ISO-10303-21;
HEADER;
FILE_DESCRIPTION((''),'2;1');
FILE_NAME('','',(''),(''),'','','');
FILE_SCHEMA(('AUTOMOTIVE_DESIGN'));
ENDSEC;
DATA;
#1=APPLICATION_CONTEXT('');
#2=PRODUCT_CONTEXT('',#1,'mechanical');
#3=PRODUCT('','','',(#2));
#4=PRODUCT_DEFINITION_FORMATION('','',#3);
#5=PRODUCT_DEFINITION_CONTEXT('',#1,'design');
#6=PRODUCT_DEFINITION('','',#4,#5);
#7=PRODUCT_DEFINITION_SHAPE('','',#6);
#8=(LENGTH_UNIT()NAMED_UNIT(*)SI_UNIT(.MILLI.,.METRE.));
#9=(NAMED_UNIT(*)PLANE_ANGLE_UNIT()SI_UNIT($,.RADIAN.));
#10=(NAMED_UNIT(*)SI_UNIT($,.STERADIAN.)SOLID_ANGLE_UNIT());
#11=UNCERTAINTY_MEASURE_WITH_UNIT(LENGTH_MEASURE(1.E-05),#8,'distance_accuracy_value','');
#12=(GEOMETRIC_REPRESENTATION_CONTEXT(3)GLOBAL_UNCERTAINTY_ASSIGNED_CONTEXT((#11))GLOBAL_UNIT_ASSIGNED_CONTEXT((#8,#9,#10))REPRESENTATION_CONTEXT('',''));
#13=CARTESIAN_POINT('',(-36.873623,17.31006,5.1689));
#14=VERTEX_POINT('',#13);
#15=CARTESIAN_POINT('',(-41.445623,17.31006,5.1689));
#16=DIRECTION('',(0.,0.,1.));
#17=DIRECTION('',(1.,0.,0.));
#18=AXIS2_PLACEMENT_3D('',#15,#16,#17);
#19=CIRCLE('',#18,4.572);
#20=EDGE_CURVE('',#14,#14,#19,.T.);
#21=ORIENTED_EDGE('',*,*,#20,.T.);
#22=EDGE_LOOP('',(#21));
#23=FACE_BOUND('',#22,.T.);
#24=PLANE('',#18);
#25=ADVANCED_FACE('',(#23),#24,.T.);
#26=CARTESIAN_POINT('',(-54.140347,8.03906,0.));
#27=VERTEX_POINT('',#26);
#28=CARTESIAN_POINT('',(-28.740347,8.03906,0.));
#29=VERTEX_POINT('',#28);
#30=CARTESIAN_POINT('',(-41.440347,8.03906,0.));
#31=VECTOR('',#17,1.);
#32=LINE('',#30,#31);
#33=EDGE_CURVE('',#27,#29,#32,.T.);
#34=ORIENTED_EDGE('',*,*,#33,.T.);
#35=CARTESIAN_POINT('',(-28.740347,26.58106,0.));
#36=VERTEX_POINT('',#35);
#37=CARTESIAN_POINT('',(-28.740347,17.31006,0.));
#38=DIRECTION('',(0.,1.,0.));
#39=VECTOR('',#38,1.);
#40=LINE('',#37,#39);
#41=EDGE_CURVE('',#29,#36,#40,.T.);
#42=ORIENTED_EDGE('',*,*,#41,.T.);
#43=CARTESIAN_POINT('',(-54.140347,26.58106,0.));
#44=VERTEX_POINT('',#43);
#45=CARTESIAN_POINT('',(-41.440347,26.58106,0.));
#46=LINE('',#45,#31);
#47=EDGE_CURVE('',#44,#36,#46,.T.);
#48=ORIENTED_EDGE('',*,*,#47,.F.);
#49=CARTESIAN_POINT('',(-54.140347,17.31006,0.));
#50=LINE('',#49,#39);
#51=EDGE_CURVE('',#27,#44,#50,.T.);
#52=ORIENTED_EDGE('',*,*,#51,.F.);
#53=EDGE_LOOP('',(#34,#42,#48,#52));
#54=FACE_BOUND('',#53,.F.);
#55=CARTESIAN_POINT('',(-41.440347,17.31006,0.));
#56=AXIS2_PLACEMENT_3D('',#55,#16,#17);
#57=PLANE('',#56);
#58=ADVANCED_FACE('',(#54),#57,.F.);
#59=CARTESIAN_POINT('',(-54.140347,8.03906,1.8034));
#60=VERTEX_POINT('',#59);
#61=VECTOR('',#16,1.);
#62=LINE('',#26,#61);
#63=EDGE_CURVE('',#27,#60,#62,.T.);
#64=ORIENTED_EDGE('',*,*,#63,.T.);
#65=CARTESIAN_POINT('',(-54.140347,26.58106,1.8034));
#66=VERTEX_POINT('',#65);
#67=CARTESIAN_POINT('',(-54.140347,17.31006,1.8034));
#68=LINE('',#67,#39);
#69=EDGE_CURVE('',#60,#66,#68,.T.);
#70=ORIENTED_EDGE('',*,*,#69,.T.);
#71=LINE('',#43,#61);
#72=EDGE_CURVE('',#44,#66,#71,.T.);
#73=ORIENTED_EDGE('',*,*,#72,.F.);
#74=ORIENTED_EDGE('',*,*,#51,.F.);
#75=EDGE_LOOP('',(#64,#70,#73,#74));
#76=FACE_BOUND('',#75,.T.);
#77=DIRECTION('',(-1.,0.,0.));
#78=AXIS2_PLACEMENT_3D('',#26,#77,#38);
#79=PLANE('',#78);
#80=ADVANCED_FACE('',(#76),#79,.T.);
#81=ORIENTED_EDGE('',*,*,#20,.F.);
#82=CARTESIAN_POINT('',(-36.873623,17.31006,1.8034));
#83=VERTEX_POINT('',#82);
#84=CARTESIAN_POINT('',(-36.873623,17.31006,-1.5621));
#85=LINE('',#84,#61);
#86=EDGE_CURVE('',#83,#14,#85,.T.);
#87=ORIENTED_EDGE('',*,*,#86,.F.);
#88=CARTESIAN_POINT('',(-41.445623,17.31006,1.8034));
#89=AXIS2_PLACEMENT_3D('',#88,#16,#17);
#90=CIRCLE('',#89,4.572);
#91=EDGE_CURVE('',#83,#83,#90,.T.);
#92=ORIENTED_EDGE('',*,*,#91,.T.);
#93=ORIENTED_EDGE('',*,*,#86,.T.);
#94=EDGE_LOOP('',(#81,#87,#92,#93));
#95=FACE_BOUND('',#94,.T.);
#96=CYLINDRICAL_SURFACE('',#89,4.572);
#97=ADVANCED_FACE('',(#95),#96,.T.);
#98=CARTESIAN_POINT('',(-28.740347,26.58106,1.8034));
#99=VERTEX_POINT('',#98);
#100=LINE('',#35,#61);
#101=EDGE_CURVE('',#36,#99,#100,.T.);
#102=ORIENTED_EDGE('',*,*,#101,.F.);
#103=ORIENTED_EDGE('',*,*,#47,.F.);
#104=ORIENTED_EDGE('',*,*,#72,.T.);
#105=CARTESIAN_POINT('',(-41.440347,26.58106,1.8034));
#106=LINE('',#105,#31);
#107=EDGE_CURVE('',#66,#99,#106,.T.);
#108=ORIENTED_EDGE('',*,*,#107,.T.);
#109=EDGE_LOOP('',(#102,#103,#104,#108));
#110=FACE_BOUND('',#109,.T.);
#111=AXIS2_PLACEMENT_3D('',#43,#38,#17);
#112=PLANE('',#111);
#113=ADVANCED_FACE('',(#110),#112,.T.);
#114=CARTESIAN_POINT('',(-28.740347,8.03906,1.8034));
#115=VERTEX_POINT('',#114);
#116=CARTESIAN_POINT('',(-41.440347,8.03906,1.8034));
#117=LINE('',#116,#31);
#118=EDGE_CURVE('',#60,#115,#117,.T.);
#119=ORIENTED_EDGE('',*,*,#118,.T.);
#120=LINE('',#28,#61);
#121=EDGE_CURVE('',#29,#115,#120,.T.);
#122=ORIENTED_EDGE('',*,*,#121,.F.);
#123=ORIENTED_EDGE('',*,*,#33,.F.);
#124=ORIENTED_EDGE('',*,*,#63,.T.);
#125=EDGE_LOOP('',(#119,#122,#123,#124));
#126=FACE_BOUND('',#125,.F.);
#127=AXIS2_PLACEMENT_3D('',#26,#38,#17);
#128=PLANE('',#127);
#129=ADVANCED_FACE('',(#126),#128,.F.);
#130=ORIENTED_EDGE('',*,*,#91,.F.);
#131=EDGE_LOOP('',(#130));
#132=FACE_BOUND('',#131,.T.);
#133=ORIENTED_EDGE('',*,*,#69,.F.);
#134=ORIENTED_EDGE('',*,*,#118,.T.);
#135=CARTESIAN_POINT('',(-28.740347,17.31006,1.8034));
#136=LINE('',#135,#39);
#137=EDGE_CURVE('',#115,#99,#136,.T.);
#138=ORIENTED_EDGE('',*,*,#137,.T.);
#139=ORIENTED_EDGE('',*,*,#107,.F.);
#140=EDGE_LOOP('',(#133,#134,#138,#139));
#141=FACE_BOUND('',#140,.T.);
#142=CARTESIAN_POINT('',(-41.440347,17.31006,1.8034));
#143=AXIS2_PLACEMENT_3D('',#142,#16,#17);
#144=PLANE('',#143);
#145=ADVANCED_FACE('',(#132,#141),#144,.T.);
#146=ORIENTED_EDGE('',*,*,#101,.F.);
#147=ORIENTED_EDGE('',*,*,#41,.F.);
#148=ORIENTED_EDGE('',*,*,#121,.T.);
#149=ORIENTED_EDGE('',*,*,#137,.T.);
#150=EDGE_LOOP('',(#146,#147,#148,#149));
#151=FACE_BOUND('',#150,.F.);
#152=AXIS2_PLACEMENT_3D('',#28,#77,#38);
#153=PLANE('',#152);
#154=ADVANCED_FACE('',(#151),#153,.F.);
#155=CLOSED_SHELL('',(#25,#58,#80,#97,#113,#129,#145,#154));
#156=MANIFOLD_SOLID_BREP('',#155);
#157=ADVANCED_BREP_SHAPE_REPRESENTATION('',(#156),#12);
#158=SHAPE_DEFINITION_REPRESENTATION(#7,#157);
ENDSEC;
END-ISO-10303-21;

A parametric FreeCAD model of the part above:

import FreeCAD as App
import Part
import Sketcher
Q = App.Units.Quantity


def add_polygon(sketch, points):
    """Adds a closed chain of lines whose ends are joined by coincident constraints."""
    first, n = sketch.GeometryCount, len(points)
    for a, b in zip(points, points[1:] + points[:1]):
        sketch.addGeometry(Part.LineSegment(App.Vector(*a, 0), App.Vector(*b, 0)), False)
    for i in range(n):
        sketch.addConstraint(Sketcher.Constraint("Coincident", first + i, 2, first + (i + 1) % n, 1))

doc = App.newDocument("Part")
body = doc.addObject("PartDesign::Body", "Body")

# Sketch on XY plane
sketch1 = body.newObject("Sketcher::SketchObject", "Sketch")
sketch1.AttachmentSupport = (doc.getObject("XY_Plane"), [""])
sketch1.MapMode = "FlatFace"
add_polygon(sketch1, [(-54, 27), (-54, 8), (-29, 8), (-29, 27)])  # lines 0-3
sketch1.addConstraint(Sketcher.Constraint("Vertical", 0))
sketch1.addConstraint(Sketcher.Constraint("Horizontal", 1))
sketch1.addConstraint(Sketcher.Constraint("Vertical", 2))
sketch1.addConstraint(Sketcher.Constraint("Horizontal", 3))
sketch1.addConstraint(Sketcher.Constraint("DistanceX", 1, 1, 1, 2, Q("1 in")))
sketch1.addConstraint(Sketcher.Constraint("DistanceY", 0, 2, 0, 1, Q("0.73 in")))
sketch1.addConstraint(Sketcher.Constraint("DistanceY", -1, 1, 0, 2, Q("8.03906 mm")))
sketch1.addConstraint(Sketcher.Constraint("DistanceX", 0, 2, -1, 1, Q("54.140347 mm")))
pad1 = body.newObject("PartDesign::Pad", "Pad")
pad1.Profile = sketch1
pad1.Length = Q("0.071 in")

# Sketch on XY plane
sketch2 = body.newObject("Sketcher::SketchObject", "Sketch001")
sketch2.AttachmentSupport = (doc.getObject("XY_Plane"), [""])
sketch2.MapMode = "FlatFace"
sketch2.AttachmentOffset = App.Placement(App.Vector(0, 0, 0.071 * 25.4), App.Rotation())
sketch2.addGeometry(Part.Circle(App.Vector(-41.4, 17.3, 0), App.Vector(0, 0, 1), 4.6), False)
sketch2.addConstraint(Sketcher.Constraint("Diameter", 0, Q("0.36 in")))
sketch2.addConstraint(Sketcher.Constraint("DistanceY", -1, 1, 0, 3, Q("17.31006 mm")))
sketch2.addConstraint(Sketcher.Constraint("DistanceX", 0, 3, -1, 1, Q("41.445623 mm")))
pad2 = body.newObject("PartDesign::Pad", "Pad001")
pad2.Profile = sketch2
pad2.Length = Q("0.265 in")
pad2.Midplane = True

# Sketch on XY plane
sketch3 = body.newObject("Sketcher::SketchObject", "Sketch002")
sketch3.AttachmentSupport = (doc.getObject("XY_Plane"), [""])
sketch3.MapMode = "FlatFace"
sketch3.AttachmentOffset = App.Placement(App.Vector(0, 0, -0.0615 * 25.4), App.Rotation())
sketch3.addGeometry(Part.Circle(App.Vector(-41.4, 17.3, 0), App.Vector(0, 0, 1), 4.6), False)
sketch3.addConstraint(Sketcher.Constraint("Diameter", 0, Q("0.36 in")))
sketch3.addConstraint(Sketcher.Constraint("DistanceY", -1, 1, 0, 3, Q("17.31006 mm")))
sketch3.addConstraint(Sketcher.Constraint("DistanceX", 0, 3, -1, 1, Q("41.445623 mm")))
pocket1 = body.newObject("PartDesign::Pocket", "Pocket")
pocket1.Profile = sketch3
pocket1.Length = Q("0.0615 in")
pocket1.Reversed = True

doc.recompute()
